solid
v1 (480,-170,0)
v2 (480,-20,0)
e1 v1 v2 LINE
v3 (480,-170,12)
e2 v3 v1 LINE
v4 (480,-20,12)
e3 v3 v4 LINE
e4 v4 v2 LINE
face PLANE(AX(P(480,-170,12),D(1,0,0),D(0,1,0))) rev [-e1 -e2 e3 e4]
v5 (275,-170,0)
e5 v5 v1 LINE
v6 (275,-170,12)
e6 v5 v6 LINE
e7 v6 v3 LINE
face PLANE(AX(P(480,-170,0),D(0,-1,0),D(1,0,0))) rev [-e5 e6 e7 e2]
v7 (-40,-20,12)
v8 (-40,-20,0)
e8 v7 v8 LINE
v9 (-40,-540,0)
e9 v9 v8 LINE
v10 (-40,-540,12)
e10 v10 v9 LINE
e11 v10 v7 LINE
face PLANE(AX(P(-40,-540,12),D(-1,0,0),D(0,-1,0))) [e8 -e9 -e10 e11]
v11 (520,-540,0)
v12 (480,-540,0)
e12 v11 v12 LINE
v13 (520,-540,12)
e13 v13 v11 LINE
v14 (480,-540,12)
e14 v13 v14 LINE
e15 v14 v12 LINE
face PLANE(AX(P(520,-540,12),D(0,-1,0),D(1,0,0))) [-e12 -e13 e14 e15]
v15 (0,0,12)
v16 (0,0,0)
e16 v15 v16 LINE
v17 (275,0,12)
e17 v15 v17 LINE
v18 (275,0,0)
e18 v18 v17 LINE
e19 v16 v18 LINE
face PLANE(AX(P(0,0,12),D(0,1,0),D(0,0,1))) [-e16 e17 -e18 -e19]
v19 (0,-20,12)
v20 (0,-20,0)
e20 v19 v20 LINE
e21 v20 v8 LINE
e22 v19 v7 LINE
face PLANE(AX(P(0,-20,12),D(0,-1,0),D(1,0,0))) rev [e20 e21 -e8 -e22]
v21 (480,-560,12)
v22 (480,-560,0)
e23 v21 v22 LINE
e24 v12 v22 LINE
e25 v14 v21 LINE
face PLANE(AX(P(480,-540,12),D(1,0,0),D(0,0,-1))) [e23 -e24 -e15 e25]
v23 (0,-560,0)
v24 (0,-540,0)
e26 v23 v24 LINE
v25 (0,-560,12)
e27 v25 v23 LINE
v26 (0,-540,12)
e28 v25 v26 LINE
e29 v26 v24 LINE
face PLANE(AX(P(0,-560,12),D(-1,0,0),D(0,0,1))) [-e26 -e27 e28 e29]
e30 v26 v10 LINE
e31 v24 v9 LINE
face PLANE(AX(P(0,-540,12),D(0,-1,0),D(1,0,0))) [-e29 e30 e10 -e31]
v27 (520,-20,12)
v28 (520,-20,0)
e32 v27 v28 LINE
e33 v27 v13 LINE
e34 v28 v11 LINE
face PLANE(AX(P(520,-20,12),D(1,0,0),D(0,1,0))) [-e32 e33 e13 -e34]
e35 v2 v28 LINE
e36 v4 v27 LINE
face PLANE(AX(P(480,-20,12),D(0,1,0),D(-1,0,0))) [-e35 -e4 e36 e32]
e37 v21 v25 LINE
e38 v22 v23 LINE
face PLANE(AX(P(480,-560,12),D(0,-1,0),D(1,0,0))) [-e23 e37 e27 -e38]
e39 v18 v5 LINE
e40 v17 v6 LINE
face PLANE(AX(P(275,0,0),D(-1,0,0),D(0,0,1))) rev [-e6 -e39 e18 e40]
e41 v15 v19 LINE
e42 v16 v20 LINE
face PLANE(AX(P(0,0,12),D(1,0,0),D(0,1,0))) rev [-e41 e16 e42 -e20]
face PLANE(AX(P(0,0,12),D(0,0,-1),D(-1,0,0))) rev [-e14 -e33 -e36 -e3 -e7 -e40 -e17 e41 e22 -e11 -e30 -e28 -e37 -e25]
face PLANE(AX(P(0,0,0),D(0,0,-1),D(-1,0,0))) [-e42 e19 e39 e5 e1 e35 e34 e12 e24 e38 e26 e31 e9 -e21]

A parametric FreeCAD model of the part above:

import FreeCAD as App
import Part
import Sketcher
from FreeCAD import Vector
Q = App.Units.Quantity

doc = App.newDocument("Part")
body = doc.addObject("PartDesign::Body", "Body")

# Sketch on XY plane
sketch1 = doc.addObject("Sketcher::SketchObject", "Sketch")
body.addObject(sketch1)
sketch1.AttachmentSupport = (doc.XY_Plane, [""])
sketch1.MapMode = "FlatFace"
sketch1.addGeometry([
    Part.LineSegment(Vector(480, 0, 0), Vector(0, 0, 0)),  # 0
    Part.LineSegment(Vector(0, 0, 0), Vector(0, -20, 0)),  # 1
    Part.LineSegment(Vector(0, -20, 0), Vector(-40, -20, 0)),  # 2
    Part.LineSegment(Vector(-40, -20, 0), Vector(-40, -540, 0)),  # 3
    Part.LineSegment(Vector(-40, -540, 0), Vector(0, -540, 0)),  # 4
    Part.LineSegment(Vector(0, -540, 0), Vector(0, -560, 0)),  # 5
    Part.LineSegment(Vector(0, -560, 0), Vector(480, -560, 0)),  # 6
    Part.LineSegment(Vector(480, -560, 0), Vector(480, -540, 0)),  # 7
    Part.LineSegment(Vector(480, -540, 0), Vector(520, -540, 0)),  # 8
    Part.LineSegment(Vector(520, -540, 0), Vector(520, -20, 0)),  # 9
    Part.LineSegment(Vector(520, -20, 0), Vector(480, -20, 0)),  # 10
    Part.LineSegment(Vector(480, -20, 0), Vector(480, 0, 0)),  # 11
], False)
sketch1.addConstraint([
    Sketcher.Constraint("Coincident", 0, 2, 1, 1),
    Sketcher.Constraint("Coincident", 1, 2, 2, 1),
    Sketcher.Constraint("Coincident", 2, 2, 3, 1),
    Sketcher.Constraint("Coincident", 3, 2, 4, 1),
    Sketcher.Constraint("Coincident", 4, 2, 5, 1),
    Sketcher.Constraint("Coincident", 5, 2, 6, 1),
    Sketcher.Constraint("Coincident", 6, 2, 7, 1),
    Sketcher.Constraint("Coincident", 7, 2, 8, 1),
    Sketcher.Constraint("Coincident", 8, 2, 9, 1),
    Sketcher.Constraint("Coincident", 9, 2, 10, 1),
    Sketcher.Constraint("Coincident", 10, 2, 11, 1),
    Sketcher.Constraint("Coincident", 11, 2, 0, 1),
    Sketcher.Constraint("Horizontal", 0),
    Sketcher.Constraint("Vertical", 1),
    Sketcher.Constraint("Horizontal", 2),
    Sketcher.Constraint("Vertical", 3),
    Sketcher.Constraint("Horizontal", 4),
    Sketcher.Constraint("Vertical", 5),
    Sketcher.Constraint("Horizontal", 6),
    Sketcher.Constraint("Vertical", 7),
    Sketcher.Constraint("Horizontal", 8),
    Sketcher.Constraint("Vertical", 9),
    Sketcher.Constraint("Horizontal", 10),
    Sketcher.Constraint("Vertical", 11),
    Sketcher.Constraint("Coincident", 0, 2, -1, 1),
    Sketcher.Constraint("PointOnObject", 4, 2, -2),
    Sketcher.Constraint("Horizontal", 4, 2, 7, 2),
    Sketcher.Constraint("Horizontal", 2, 2, 9, 2),
    Sketcher.Constraint("Vertical", 7, 2, 10, 2),
    Sketcher.Constraint("Equal", 4, 8),
    Sketcher.Constraint("Equal", 1, 5),
    Sketcher.Constraint("DistanceX", 0, 2, 0, 1, Q("480 mm")),
    Sketcher.Constraint("DistanceX", 2, 2, 2, 1, Q("40 mm")),
    Sketcher.Constraint("DistanceY", 1, 2, 1, 1, Q("20 mm")),
    Sketcher.Constraint("DistanceY", 3, 2, 3, 1, Q("520 mm")),
])
pad1 = doc.addObject("PartDesign::Pad", "Pad")
body.addObject(pad1)
pad1.Profile = sketch1
pad1.Length = 12

# Sketch on XY plane
sketch2 = doc.addObject("Sketcher::SketchObject", "Sketch001")
body.addObject(sketch2)
sketch2.AttachmentSupport = (doc.XY_Plane, [""])
sketch2.MapMode = "FlatFace"
sketch2.AttachmentOffset = App.Placement(Vector(0, 0, 12), App.Rotation())
sketch2.addGeometry([
    Part.LineSegment(Vector(275, 0, 0), Vector(275, -170, 0)),
    Part.LineSegment(Vector(275, -170, 0), Vector(480, -170, 0)),
    Part.LineSegment(Vector(480, -170, 0), Vector(480, 0, 0)),
    Part.LineSegment(Vector(480, 0, 0), Vector(275, 0, 0)),
], False)
sketch2.addConstraint([
    Sketcher.Constraint("Coincident", 0, 2, 1, 1),
    Sketcher.Constraint("Coincident", 1, 2, 2, 1),
    Sketcher.Constraint("Coincident", 2, 2, 3, 1),
    Sketcher.Constraint("Coincident", 3, 2, 0, 1),
    Sketcher.Constraint("Vertical", 0),
    Sketcher.Constraint("Horizontal", 1),
    Sketcher.Constraint("Vertical", 2),
    Sketcher.Constraint("Horizontal", 3),
    Sketcher.Constraint("PointOnObject", 2, 2, -1),
    Sketcher.Constraint("DistanceX", 1, 1, 1, 2, Q("205 mm")),
    Sketcher.Constraint("DistanceY", 0, 2, 0, 1, Q("170 mm")),
    Sketcher.Constraint("DistanceX", -1, 1, 0, 2, Q("275 mm")),
])
pocket1 = doc.addObject("PartDesign::Pocket", "Pocket")
body.addObject(pocket1)
pocket1.Profile = sketch2
pocket1.Length = 12

# Sketch on YZ plane
sketch3 = doc.addObject("Sketcher::SketchObject", "Sketch002")
body.addObject(sketch3)
sketch3.AttachmentSupport = (doc.YZ_Plane, [""])
sketch3.MapMode = "FlatFace"
sketch3.AttachmentOffset = App.Placement(Vector(0, 0, 480), App.Rotation())
sketch3.addGeometry([
    Part.LineSegment(Vector(-20, 0, 0), Vector(-170, 0, 0)),
    Part.LineSegment(Vector(-170, 0, 0), Vector(-170, 12, 0)),
    Part.LineSegment(Vector(-170, 12, 0), Vector(-20, 12, 0)),
    Part.LineSegment(Vector(-20, 12, 0), Vector(-20, 0, 0)),
], False)
sketch3.addConstraint([
    Sketcher.Constraint("Coincident", 0, 2, 1, 1),
    Sketcher.Constraint("Coincident", 1, 2, 2, 1),
    Sketcher.Constraint("Coincident", 2, 2, 3, 1),
    Sketcher.Constraint("Coincident", 3, 2, 0, 1),
    Sketcher.Constraint("Horizontal", 0),
    Sketcher.Constraint("Vertical", 1),
    Sketcher.Constraint("Horizontal", 2),
    Sketcher.Constraint("Vertical", 3),
    Sketcher.Constraint("PointOnObject", 0, 2, -1),
    Sketcher.Constraint("DistanceX", 0, 2, 0, 1, Q("150 mm")),
    Sketcher.Constraint("DistanceY", 1, 1, 1, 2, Q("12 mm")),
    Sketcher.Constraint("DistanceX", 0, 2, -1, 1, Q("170 mm")),
])
pad2 = doc.addObject("PartDesign::Pad", "Pad001")
body.addObject(pad2)
pad2.Profile = sketch3
pad2.Length = 2
pad2.Reversed = True

# Sketch on XZ plane
sketch4 = doc.addObject("Sketcher::SketchObject", "Sketch003")
body.addObject(sketch4)
sketch4.AttachmentSupport = (doc.XZ_Plane, [""])
sketch4.MapMode = "FlatFace"
sketch4.AttachmentOffset = App.Placement(Vector(0, 0, 20), App.Rotation())
sketch4.addGeometry([
    Part.LineSegment(Vector(478, 0, 0), Vector(478, 12, 0)),
    Part.LineSegment(Vector(478, 12, 0), Vector(480, 12, 0)),
    Part.LineSegment(Vector(480, 12, 0), Vector(480, 0, 0)),
    Part.LineSegment(Vector(480, 0, 0), Vector(478, 0, 0)),
], False)
sketch4.addConstraint([
    Sketcher.Constraint("Coincident", 0, 2, 1, 1),
    Sketcher.Constraint("Coincident", 1, 2, 2, 1),
    Sketcher.Constraint("Coincident", 2, 2, 3, 1),
    Sketcher.Constraint("Coincident", 3, 2, 0, 1),
    Sketcher.Constraint("Vertical", 0),
    Sketcher.Constraint("Horizontal", 1),
    Sketcher.Constraint("Vertical", 2),
    Sketcher.Constraint("Horizontal", 3),
    Sketcher.Constraint("PointOnObject", 2, 2, -1),
    Sketcher.Constraint("DistanceX", 1, 1, 1, 2, Q("2 mm")),
    Sketcher.Constraint("DistanceY", 0, 1, 0, 2, Q("12 mm")),
    Sketcher.Constraint("DistanceX", -1, 1, 0, 2, Q("478 mm")),
])
pocket2 = doc.addObject("PartDesign::Pocket", "Pocket001")
body.addObject(pocket2)
pocket2.Profile = sketch4
pocket2.Length = 150
pocket2.Reversed = True

doc.recompute()
